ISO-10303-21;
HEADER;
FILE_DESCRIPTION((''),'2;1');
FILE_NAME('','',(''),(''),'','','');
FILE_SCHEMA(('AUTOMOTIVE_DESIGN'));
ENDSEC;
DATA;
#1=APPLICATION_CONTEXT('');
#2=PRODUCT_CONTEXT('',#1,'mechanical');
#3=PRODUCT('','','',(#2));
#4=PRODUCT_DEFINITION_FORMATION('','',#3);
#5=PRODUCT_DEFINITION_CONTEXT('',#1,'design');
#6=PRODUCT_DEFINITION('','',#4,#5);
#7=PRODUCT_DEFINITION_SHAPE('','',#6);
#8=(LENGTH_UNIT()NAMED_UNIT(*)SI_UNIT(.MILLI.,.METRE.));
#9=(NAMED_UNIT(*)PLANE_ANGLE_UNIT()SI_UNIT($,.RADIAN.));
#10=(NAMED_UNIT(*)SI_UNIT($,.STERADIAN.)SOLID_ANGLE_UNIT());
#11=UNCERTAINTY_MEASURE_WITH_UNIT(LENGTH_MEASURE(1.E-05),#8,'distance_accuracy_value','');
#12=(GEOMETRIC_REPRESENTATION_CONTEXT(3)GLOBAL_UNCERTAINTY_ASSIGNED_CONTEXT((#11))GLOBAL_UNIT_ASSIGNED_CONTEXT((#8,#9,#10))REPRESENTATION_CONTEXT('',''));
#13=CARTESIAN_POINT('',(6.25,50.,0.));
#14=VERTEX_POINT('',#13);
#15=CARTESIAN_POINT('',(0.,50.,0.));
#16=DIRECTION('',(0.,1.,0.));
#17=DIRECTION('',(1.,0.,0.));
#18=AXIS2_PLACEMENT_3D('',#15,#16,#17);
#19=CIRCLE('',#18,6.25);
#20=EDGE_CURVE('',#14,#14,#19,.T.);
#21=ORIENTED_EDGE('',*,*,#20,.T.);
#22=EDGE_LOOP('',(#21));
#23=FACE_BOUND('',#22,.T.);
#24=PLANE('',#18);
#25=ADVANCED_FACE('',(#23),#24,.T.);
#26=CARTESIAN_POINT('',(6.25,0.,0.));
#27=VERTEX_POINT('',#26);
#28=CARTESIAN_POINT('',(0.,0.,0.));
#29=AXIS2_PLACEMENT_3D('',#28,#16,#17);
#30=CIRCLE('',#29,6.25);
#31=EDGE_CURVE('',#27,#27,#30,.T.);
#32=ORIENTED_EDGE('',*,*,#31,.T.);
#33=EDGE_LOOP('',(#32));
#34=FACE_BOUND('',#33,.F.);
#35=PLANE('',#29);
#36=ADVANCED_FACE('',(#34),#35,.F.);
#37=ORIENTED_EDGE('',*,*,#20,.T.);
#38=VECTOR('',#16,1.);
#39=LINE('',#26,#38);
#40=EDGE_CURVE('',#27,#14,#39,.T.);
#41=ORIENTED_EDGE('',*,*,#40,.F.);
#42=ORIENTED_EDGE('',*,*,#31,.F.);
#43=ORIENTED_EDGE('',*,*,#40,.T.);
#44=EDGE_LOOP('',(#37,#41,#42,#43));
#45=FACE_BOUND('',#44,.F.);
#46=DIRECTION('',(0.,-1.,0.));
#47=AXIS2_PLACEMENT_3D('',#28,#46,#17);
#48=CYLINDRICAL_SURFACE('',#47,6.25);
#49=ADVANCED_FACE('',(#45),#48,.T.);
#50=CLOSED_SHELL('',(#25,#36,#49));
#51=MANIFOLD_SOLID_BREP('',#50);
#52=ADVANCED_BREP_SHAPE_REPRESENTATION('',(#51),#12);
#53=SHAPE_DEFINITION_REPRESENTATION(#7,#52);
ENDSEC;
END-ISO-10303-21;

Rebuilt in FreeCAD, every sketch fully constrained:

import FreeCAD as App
import Part
import Sketcher

V = App.Vector
Q = App.Units.Quantity

doc = App.newDocument("Part")
body = doc.addObject("PartDesign::Body", "Body")

# Sketch on XZ plane
sketch1 = body.newObject("Sketcher::SketchObject", "Sketch")
sketch1.AttachmentSupport = (doc.getObject("XZ_Plane"), [""])
sketch1.MapMode = "FlatFace"
sketch1.addGeometry(Part.Circle(V(0, 0, 0), V(0, 0, 1), 6), False)
sketch1.addConstraint([
    Sketcher.Constraint("Coincident", 0, 3, -1, 1),
    Sketcher.Constraint("Diameter", 0, Q("12.5 mm")),
])
pad1 = body.newObject("PartDesign::Pad", "Pad")
pad1.Profile = sketch1
pad1.Length = 50
pad1.Reversed = True

doc.recompute()
